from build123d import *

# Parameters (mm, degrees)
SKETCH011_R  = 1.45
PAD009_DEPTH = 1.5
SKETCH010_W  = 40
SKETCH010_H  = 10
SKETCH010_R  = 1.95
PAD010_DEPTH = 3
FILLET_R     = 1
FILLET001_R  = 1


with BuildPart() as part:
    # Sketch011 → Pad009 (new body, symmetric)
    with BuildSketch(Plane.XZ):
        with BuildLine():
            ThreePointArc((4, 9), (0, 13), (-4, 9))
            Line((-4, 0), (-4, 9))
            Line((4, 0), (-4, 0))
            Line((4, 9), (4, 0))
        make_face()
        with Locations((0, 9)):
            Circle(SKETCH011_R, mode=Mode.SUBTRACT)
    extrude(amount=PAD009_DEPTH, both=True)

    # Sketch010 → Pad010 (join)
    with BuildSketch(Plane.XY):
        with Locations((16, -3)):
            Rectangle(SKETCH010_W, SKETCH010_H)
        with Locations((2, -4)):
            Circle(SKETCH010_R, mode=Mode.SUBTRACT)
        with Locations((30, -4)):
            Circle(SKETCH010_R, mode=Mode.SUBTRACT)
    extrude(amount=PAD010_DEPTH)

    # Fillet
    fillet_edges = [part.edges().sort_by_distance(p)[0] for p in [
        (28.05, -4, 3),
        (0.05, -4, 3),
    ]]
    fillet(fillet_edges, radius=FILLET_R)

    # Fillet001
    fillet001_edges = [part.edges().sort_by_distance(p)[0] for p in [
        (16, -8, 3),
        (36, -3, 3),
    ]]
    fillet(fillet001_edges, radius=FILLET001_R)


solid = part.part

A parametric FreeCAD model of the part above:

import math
import FreeCAD as App
import Part
import Sketcher


def edges_at(feature, points):
    """Names of the edges that pass closest to the given points."""
    edges = feature.Shape.Edges
    near = lambda p: min(range(len(edges)), key=lambda i: edges[i].distToShape(Part.Vertex(*p))[0])
    return sorted({f"Edge{near(p) + 1}" for p in points})


def add_polygon(sketch, points):
    """Adds a closed chain of lines whose ends are joined by coincident constraints."""
    first, n = sketch.GeometryCount, len(points)
    for a, b in zip(points, points[1:] + points[:1]):
        sketch.addGeometry(Part.LineSegment(App.Vector(*a, 0), App.Vector(*b, 0)), False)
    for i in range(n):
        sketch.addConstraint(Sketcher.Constraint("Coincident", first + i, 2, first + (i + 1) % n, 1))

doc = App.newDocument("Part")
body = doc.addObject("PartDesign::Body", "Body")

sketch1 = body.newObject("Sketcher::SketchObject", "Sketch")
sketch1.AttachmentSupport = (doc.getObject("XZ_Plane"), [""])
sketch1.MapMode = "FlatFace"
sketch1.addGeometry(Part.ArcOfCircle(Part.Circle(App.Vector(0, 9, 0), App.Vector(0, 0, 1), 4), math.radians(0), math.radians(180)), False)
sketch1.addGeometry(Part.LineSegment(App.Vector(-4, 9, 0), App.Vector(-4, 0, 0)), False)
sketch1.addGeometry(Part.LineSegment(App.Vector(-4, 0, 0), App.Vector(4, 0, 0)), False)
sketch1.addGeometry(Part.LineSegment(App.Vector(4, 0, 0), App.Vector(4, 9, 0)), False)
sketch1.addGeometry(Part.Circle(App.Vector(0, 9, 0), App.Vector(0, 0, 1), 1.4), False)
sketch1.addConstraint(Sketcher.Constraint("Tangent", 0, 2, 1, 1))
sketch1.addConstraint(Sketcher.Constraint("Coincident", 1, 2, 2, 1))
sketch1.addConstraint(Sketcher.Constraint("Coincident", 2, 2, 3, 1))
sketch1.addConstraint(Sketcher.Constraint("Tangent", 3, 2, 0, 1))
sketch1.addConstraint(Sketcher.Constraint("Vertical", 1))
sketch1.addConstraint(Sketcher.Constraint("Horizontal", 2))
sketch1.addConstraint(Sketcher.Constraint("Vertical", 3))
sketch1.addConstraint(Sketcher.Constraint("Coincident", 4, 3, 0, 3))
sketch1.addConstraint(Sketcher.Constraint("Symmetric", 1, 2, 2, 2, -1, 1))
sketch1.addConstraint(Sketcher.Constraint("Radius", 0, 4.0))
sketch1.addConstraint(Sketcher.Constraint("Diameter", 4, 2.9))
sketch1.addConstraint(Sketcher.Constraint("DistanceY", 1, 2, 1, 1, 9.0))
pad1 = body.newObject("PartDesign::Pad", "Pad")
pad1.Profile = sketch1
pad1.Length = 3
pad1.Midplane = True

sketch2 = body.newObject("Sketcher::SketchObject", "Sketch001")
sketch2.AttachmentSupport = (doc.getObject("XY_Plane"), [""])
sketch2.MapMode = "FlatFace"
add_polygon(sketch2, [(-4, 2), (-4, -8), (36, -8), (36, 2)])
sketch2.addGeometry(Part.Circle(App.Vector(2, -4, 0), App.Vector(0, 0, 1), 1.9), False)
sketch2.addGeometry(Part.Circle(App.Vector(30, -4, 0), App.Vector(0, 0, 1), 1.9), False)
sketch2.addConstraint(Sketcher.Constraint("Vertical", 0))
sketch2.addConstraint(Sketcher.Constraint("Horizontal", 1))
sketch2.addConstraint(Sketcher.Constraint("Vertical", 2))
sketch2.addConstraint(Sketcher.Constraint("Horizontal", 3))
sketch2.addConstraint(Sketcher.Constraint("Equal", 4, 5))
sketch2.addConstraint(Sketcher.Constraint("Horizontal", 4, 3, 5, 3))
sketch2.addConstraint(Sketcher.Constraint("Diameter", 4, 3.9))
sketch2.addConstraint(Sketcher.Constraint("DistanceX", 1, 1, 1, 2, 40.0))
sketch2.addConstraint(Sketcher.Constraint("DistanceY", 0, 2, 0, 1, 10.0))
sketch2.addConstraint(Sketcher.Constraint("DistanceX", -1, 1, 4, 3, 2.0))
sketch2.addConstraint(Sketcher.Constraint("DistanceY", 4, 3, -1, 1, 4.0))
sketch2.addConstraint(Sketcher.Constraint("DistanceX", -1, 1, 5, 3, 30.0))
sketch2.addConstraint(Sketcher.Constraint("DistanceX", 0, 2, -1, 1, 4.0))
sketch2.addConstraint(Sketcher.Constraint("DistanceY", 0, 2, -1, 1, 8.0))
pad2 = body.newObject("PartDesign::Pad", "Pad001")
pad2.Profile = sketch2
pad2.Length = 3
doc.recompute()

fillet = body.newObject("PartDesign::Fillet", "Fillet")
fillet.Base = (pad2, edges_at(pad2, [(28.05, -4, 3), (0.05, -4, 3)]))
fillet.Radius = 1
doc.recompute()

fillet2 = body.newObject("PartDesign::Fillet", "Fillet001")
fillet2.Base = (fillet, edges_at(fillet, [(16, -8, 3), (36, -3, 3)]))
fillet2.Radius = 1

doc.recompute()
